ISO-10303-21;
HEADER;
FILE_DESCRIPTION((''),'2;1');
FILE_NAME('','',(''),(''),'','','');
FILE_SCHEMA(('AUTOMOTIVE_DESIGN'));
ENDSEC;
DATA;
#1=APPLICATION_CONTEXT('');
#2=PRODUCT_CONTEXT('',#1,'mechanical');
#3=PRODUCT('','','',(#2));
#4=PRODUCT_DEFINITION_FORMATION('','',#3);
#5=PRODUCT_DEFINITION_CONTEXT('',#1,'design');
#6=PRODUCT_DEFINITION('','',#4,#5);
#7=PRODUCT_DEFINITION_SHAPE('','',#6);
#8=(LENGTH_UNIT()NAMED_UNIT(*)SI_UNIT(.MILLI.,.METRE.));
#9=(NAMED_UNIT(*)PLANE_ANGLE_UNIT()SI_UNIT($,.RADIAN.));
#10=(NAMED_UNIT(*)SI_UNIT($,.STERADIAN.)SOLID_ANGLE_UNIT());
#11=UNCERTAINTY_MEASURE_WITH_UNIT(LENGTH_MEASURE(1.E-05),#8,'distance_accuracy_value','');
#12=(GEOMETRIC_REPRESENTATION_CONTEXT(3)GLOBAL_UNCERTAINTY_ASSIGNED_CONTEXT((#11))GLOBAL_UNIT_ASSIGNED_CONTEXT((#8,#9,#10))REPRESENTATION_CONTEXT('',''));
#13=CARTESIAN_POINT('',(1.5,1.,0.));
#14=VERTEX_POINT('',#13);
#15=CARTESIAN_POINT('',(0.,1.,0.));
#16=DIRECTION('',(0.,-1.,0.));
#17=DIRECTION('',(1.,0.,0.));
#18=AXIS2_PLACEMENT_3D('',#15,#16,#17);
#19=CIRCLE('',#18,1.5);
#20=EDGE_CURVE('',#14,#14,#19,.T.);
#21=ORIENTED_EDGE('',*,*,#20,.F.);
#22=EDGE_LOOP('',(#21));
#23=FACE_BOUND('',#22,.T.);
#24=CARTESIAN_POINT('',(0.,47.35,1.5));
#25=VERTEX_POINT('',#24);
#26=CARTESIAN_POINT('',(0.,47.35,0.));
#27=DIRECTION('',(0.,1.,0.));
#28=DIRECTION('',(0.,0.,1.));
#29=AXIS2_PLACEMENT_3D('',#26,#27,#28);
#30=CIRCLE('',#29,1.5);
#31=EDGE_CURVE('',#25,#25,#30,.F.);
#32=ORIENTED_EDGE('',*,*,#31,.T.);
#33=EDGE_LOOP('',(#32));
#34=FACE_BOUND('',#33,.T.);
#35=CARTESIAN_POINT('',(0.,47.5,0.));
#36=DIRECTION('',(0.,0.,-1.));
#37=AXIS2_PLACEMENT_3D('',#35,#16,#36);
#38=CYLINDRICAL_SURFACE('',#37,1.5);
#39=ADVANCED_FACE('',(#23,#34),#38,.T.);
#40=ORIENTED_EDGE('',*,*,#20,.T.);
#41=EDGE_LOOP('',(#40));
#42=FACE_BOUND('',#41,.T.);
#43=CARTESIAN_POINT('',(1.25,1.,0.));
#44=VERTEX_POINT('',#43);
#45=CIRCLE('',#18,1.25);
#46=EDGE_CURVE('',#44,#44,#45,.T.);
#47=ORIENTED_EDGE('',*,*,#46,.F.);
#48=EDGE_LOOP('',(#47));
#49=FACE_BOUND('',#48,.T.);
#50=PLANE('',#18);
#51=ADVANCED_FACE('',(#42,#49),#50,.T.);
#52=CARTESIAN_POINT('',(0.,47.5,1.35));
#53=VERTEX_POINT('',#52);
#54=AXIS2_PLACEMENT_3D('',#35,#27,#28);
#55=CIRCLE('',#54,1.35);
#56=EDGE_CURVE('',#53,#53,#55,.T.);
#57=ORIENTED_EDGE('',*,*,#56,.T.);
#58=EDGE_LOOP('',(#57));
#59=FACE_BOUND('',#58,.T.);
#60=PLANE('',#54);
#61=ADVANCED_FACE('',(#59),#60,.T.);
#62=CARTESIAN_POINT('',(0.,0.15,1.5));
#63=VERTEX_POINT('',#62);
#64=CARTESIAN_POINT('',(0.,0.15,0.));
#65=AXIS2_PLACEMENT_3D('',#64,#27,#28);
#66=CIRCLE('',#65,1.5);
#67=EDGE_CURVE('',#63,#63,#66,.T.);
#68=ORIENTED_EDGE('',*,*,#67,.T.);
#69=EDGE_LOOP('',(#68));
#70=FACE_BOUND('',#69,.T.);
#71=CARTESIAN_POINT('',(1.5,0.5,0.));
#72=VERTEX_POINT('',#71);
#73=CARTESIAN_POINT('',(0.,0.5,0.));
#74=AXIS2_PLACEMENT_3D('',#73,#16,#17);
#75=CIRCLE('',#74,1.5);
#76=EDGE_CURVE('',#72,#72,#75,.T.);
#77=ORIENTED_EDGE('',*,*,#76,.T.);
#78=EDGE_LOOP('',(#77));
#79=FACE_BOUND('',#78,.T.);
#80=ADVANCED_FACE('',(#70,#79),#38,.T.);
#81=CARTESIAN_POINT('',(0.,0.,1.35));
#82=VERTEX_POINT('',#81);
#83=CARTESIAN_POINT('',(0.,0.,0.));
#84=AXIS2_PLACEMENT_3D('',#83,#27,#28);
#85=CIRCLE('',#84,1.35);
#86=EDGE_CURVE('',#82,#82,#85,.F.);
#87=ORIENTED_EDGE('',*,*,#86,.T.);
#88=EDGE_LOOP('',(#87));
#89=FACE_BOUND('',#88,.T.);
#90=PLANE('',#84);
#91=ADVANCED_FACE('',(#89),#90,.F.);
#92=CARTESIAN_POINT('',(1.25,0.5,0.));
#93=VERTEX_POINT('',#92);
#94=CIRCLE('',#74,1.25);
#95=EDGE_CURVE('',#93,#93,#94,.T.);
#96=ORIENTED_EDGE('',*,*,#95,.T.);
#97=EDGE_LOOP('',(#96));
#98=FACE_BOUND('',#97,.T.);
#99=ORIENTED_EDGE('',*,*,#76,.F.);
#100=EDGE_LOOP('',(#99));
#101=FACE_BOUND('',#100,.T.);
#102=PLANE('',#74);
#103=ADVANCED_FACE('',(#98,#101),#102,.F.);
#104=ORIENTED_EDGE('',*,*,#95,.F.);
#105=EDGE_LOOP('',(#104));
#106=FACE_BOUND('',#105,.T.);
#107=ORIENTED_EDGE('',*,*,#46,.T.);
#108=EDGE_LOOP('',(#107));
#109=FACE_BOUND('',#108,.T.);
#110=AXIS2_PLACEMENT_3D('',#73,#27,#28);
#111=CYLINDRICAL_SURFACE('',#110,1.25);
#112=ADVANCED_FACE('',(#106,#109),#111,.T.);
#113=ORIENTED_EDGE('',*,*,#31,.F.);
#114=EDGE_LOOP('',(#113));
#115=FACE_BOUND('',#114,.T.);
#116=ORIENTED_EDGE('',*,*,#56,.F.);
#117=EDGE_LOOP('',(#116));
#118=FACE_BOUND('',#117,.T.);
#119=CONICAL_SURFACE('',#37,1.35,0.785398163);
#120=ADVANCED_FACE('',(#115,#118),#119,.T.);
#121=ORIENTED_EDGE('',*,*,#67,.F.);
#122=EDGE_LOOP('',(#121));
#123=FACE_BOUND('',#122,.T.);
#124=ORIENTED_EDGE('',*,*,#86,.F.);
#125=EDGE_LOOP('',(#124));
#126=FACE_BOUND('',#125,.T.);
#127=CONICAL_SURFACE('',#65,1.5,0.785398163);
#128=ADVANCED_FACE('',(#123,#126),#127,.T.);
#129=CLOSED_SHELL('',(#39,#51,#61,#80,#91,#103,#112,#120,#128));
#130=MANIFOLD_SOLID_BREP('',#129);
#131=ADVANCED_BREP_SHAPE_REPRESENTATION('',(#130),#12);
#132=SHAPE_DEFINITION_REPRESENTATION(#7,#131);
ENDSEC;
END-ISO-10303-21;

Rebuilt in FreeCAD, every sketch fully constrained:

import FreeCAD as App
import Part
import Sketcher

V = App.Vector
Q = App.Units.Quantity


def edges_at(feature, points):
    """Names of the edges that pass closest to the given points."""
    edges = feature.Shape.Edges
    near = lambda p: min(range(len(edges)), key=lambda i: edges[i].distToShape(Part.Vertex(*p))[0])
    return sorted({f"Edge{near(p) + 1}" for p in points})

doc = App.newDocument("Part")
body = doc.addObject("PartDesign::Body", "Body")

# Sketch on XZ plane
sketch1 = body.newObject("Sketcher::SketchObject", "Sketch")
sketch1.AttachmentSupport = (doc.getObject("XZ_Plane"), [""])
sketch1.MapMode = "FlatFace"
sketch1.addGeometry(Part.Circle(V(0, 0, 0), V(0, 0, 1), 1.5), False)
sketch1.addConstraint([
    Sketcher.Constraint("Coincident", 0, 3, -1, 1),
    Sketcher.Constraint("Diameter", 0, Q("3 mm")),
])
pad1 = body.newObject("PartDesign::Pad", "Pad")
pad1.Profile = sketch1
pad1.Length = 47.5
pad1.Reversed = True
doc.recompute()

chamfer = body.newObject("PartDesign::Chamfer", "Chamfer")
chamfer.Base = (pad1, edges_at(pad1, [(0, 0, -1.5), (0, 47.5, -1.5)]))
chamfer.Size = 0.15

# Sketch on XZ plane
sketch2 = body.newObject("Sketcher::SketchObject", "Sketch001")
sketch2.AttachmentSupport = (doc.getObject("XZ_Plane"), [""])
sketch2.MapMode = "FlatFace"
sketch2.AttachmentOffset = App.Placement(V(0, 0, -1), App.Rotation())
sketch2.addGeometry([
    Part.Circle(V(0, 0, 0), V(0, 0, 1), 1.5),
    Part.Circle(V(0, 0, 0), V(0, 0, 1), 1.25),
], False)
sketch2.addConstraint([
    Sketcher.Constraint("Coincident", 0, 3, -1, 1),
    Sketcher.Constraint("Coincident", 1, 3, -1, 1),
    Sketcher.Constraint("Diameter", 0, Q("3 mm")),
    Sketcher.Constraint("Diameter", 1, Q("2.5 mm")),
])
pocket1 = body.newObject("PartDesign::Pocket", "Pocket")
pocket1.Profile = sketch2
pocket1.Length = 0.5
pocket1.Reversed = True

doc.recompute()
